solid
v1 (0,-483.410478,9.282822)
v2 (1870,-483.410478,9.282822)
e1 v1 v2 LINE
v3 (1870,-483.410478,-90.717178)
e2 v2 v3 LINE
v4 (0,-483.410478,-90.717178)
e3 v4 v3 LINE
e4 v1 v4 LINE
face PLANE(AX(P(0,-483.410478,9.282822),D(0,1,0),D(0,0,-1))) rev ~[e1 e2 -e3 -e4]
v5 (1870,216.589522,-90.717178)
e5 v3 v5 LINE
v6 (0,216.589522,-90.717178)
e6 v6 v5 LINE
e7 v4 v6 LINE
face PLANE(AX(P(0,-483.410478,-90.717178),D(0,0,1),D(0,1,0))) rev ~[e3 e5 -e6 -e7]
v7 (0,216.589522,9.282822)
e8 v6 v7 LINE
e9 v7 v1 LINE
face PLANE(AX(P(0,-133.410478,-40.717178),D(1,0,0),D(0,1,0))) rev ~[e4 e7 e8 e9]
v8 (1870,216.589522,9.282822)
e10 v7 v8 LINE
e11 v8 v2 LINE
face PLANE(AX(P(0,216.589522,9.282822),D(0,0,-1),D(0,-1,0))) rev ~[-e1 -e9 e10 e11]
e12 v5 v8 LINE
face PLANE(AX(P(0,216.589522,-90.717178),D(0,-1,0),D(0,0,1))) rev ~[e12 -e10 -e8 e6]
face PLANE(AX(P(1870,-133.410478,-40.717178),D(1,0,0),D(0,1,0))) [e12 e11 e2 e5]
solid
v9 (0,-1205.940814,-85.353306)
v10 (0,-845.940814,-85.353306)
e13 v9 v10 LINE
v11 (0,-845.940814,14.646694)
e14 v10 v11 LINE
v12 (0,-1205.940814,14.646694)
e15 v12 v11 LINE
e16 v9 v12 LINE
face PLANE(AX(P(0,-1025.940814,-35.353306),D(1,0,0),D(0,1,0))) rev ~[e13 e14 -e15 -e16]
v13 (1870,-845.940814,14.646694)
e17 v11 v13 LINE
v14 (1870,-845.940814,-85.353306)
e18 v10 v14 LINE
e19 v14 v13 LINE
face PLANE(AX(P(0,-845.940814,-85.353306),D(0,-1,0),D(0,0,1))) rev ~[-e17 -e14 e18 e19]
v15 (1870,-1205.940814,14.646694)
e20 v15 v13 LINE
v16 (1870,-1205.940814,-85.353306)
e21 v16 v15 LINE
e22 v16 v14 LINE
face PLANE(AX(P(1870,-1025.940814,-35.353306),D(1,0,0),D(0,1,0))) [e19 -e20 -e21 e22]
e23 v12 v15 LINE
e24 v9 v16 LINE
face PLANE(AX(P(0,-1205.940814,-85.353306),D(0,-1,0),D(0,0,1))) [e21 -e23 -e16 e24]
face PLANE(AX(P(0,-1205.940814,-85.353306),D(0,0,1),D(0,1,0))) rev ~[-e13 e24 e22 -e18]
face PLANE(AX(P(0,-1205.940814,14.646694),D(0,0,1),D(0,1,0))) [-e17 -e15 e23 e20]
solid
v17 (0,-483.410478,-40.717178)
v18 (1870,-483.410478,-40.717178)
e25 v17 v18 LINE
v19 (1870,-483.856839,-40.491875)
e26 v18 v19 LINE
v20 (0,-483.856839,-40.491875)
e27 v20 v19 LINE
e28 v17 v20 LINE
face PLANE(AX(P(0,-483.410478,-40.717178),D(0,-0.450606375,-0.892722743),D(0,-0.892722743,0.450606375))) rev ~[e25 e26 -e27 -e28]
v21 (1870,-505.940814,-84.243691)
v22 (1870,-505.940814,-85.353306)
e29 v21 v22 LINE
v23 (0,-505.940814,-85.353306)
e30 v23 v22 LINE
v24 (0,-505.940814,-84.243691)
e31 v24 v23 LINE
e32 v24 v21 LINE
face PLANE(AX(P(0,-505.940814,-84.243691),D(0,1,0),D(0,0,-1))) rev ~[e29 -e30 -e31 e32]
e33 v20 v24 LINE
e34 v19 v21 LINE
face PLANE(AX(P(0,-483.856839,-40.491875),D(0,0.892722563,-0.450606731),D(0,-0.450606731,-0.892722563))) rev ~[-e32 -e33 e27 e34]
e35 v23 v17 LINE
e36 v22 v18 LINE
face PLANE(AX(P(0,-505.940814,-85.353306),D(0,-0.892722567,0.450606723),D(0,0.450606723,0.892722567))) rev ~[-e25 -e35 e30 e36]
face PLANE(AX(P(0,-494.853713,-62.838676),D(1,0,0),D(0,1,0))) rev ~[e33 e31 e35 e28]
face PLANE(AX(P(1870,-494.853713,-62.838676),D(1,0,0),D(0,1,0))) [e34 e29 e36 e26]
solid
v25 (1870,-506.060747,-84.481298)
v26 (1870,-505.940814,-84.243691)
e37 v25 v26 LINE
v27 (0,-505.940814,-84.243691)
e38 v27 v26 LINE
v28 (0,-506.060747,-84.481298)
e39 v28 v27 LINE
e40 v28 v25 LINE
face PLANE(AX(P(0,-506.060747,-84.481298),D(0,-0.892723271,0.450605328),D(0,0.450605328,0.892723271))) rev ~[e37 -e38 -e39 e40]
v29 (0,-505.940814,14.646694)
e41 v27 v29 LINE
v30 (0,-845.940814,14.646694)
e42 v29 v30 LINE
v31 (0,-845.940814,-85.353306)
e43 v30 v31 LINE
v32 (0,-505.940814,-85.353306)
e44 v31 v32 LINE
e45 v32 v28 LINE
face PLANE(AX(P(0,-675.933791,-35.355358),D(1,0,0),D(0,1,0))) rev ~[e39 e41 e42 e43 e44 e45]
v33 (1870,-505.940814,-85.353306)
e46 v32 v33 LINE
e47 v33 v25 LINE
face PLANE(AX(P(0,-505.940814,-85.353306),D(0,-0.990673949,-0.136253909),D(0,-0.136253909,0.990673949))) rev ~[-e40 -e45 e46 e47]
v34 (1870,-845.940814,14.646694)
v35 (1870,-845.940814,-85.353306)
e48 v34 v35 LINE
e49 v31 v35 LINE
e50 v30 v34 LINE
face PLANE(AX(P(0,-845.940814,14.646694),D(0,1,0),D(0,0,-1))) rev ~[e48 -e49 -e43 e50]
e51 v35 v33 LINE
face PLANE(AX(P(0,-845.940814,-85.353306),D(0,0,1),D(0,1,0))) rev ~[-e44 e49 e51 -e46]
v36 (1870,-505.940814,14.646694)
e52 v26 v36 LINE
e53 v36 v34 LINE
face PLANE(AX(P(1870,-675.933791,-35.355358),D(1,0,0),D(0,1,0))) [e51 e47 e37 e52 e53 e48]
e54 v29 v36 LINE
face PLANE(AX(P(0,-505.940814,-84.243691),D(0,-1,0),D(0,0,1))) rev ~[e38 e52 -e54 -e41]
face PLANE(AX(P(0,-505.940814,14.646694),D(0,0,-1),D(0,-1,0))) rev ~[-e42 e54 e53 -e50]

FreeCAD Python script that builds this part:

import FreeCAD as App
import Part
import Sketcher

doc = App.newDocument("Part")
body = doc.addObject("PartDesign::Body", "Body")

# Sketch on YZ plane
sketch1 = doc.addObject("Sketcher::SketchObject", "Sketch")
body.addObject(sketch1)
sketch1.AttachmentSupport = (doc.YZ_Plane, [""])
sketch1.MapMode = "FlatFace"
sketch1.addGeometry([
    Part.LineSegment(App.Vector(-1206, 15, 0), App.Vector(-1206, -85, 0)),
    Part.LineSegment(App.Vector(-1206, -85, 0), App.Vector(-846, -85, 0)),
    Part.LineSegment(App.Vector(-846, -85, 0), App.Vector(-846, 15, 0)),
    Part.LineSegment(App.Vector(-846, 15, 0), App.Vector(-1206, 15, 0)),
], False)
sketch1.addConstraint([
    Sketcher.Constraint("Coincident", 0, 2, 1, 1),
    Sketcher.Constraint("Coincident", 1, 2, 2, 1),
    Sketcher.Constraint("Coincident", 2, 2, 3, 1),
    Sketcher.Constraint("Coincident", 3, 2, 0, 1),
    Sketcher.Constraint("Vertical", 0),
    Sketcher.Constraint("Horizontal", 1),
    Sketcher.Constraint("Vertical", 2),
    Sketcher.Constraint("Horizontal", 3),
    Sketcher.Constraint("DistanceX", 1, 1, 1, 2, 360.0),
    Sketcher.Constraint("DistanceY", 0, 2, 0, 1, 100.0),
    Sketcher.Constraint("DistanceX", 0, 2, -1, 1, 1205.940814),
    Sketcher.Constraint("DistanceY", 0, 2, -1, 1, 85.353306),
])
pad1 = doc.addObject("PartDesign::Pad", "Pad")
body.addObject(pad1)
pad1.Profile = sketch1
pad1.Length = 1870
body2 = doc.addObject("PartDesign::Body", "Body001")

# Sketch on YZ plane
sketch2 = doc.addObject("Sketcher::SketchObject", "Sketch001")
body2.addObject(sketch2)
sketch2.AttachmentSupport = (doc.getObject("YZ_Plane001"), [""])
sketch2.MapMode = "FlatFace"
sketch2.addGeometry([
    Part.LineSegment(App.Vector(-505.94, 14.65, 0), App.Vector(-845.94, 14.65, 0)),  # 0
    Part.LineSegment(App.Vector(-845.94, 14.65, 0), App.Vector(-845.94, -85.35, 0)),  # 1
    Part.LineSegment(App.Vector(-845.94, -85.35, 0), App.Vector(-505.94, -85.35, 0)),  # 2
    Part.LineSegment(App.Vector(-505.94, -85.35, 0), App.Vector(-506.06, -84.48, 0)),  # 3
    Part.LineSegment(App.Vector(-506.06, -84.48, 0), App.Vector(-505.94, -84.24, 0)),  # 4
    Part.LineSegment(App.Vector(-505.94, -84.24, 0), App.Vector(-505.94, 14.65, 0)),  # 5
], False)
sketch2.addConstraint([
    Sketcher.Constraint("Coincident", 0, 2, 1, 1),
    Sketcher.Constraint("Coincident", 1, 2, 2, 1),
    Sketcher.Constraint("Coincident", 2, 2, 3, 1),
    Sketcher.Constraint("Coincident", 3, 2, 4, 1),
    Sketcher.Constraint("Coincident", 4, 2, 5, 1),
    Sketcher.Constraint("Coincident", 5, 2, 0, 1),
    Sketcher.Constraint("Horizontal", 0),
    Sketcher.Constraint("Vertical", 1),
    Sketcher.Constraint("Horizontal", 2),
    Sketcher.Constraint("Vertical", 5),
    Sketcher.Constraint("Vertical", 2, 2, 4, 2),
    Sketcher.Constraint("DistanceX", 0, 2, 0, 1, 340.0),
    Sketcher.Constraint("DistanceY", 1, 2, 1, 1, 100.0),
    Sketcher.Constraint("Distance", 4, 0.26616),
    Sketcher.Constraint("DistanceY", 5, 1, 5, 2, 98.890385),
    Sketcher.Constraint("DistanceY", 4, 2, -1, 1, 84.243691),
    Sketcher.Constraint("DistanceY", 2, 2, 3, 2, 0.872008),
    Sketcher.Constraint("DistanceX", 0, 2, -1, 1, 845.940814),
])
pad2 = doc.addObject("PartDesign::Pad", "Pad001")
body2.addObject(pad2)
pad2.Profile = sketch2
pad2.Length = 1870
body3 = doc.addObject("PartDesign::Body", "Body002")

# Sketch on YZ plane
sketch3 = doc.addObject("Sketcher::SketchObject", "Sketch002")
body3.addObject(sketch3)
sketch3.AttachmentSupport = (doc.getObject("YZ_Plane002"), [""])
sketch3.MapMode = "FlatFace"
sketch3.addGeometry([
    Part.LineSegment(App.Vector(-483, 9, 0), App.Vector(-483, -91, 0)),
    Part.LineSegment(App.Vector(-483, -91, 0), App.Vector(217, -91, 0)),
    Part.LineSegment(App.Vector(217, -91, 0), App.Vector(217, 9, 0)),
    Part.LineSegment(App.Vector(217, 9, 0), App.Vector(-483, 9, 0)),
], False)
sketch3.addConstraint([
    Sketcher.Constraint("Coincident", 0, 2, 1, 1),
    Sketcher.Constraint("Coincident", 1, 2, 2, 1),
    Sketcher.Constraint("Coincident", 2, 2, 3, 1),
    Sketcher.Constraint("Coincident", 3, 2, 0, 1),
    Sketcher.Constraint("Vertical", 0),
    Sketcher.Constraint("Horizontal", 1),
    Sketcher.Constraint("Vertical", 2),
    Sketcher.Constraint("Horizontal", 3),
    Sketcher.Constraint("DistanceX", 1, 1, 1, 2, 700.0),
    Sketcher.Constraint("DistanceY", 0, 2, 0, 1, 100.0),
    Sketcher.Constraint("DistanceX", 0, 2, -1, 1, 483.410478),
    Sketcher.Constraint("DistanceY", 0, 2, -1, 1, 90.717178),
])
pad3 = doc.addObject("PartDesign::Pad", "Pad002")
body3.addObject(pad3)
pad3.Profile = sketch3
pad3.Length = 1870
body4 = doc.addObject("PartDesign::Body", "Body003")

# Sketch on YZ plane
sketch4 = doc.addObject("Sketcher::SketchObject", "Sketch003")
body4.addObject(sketch4)
sketch4.AttachmentSupport = (doc.getObject("YZ_Plane003"), [""])
sketch4.MapMode = "FlatFace"
sketch4.addGeometry([
    Part.LineSegment(App.Vector(-505.94, -84.24, 0), App.Vector(-505.94, -85.35, 0)),
    Part.LineSegment(App.Vector(-505.94, -85.35, 0), App.Vector(-483.41, -40.72, 0)),
    Part.LineSegment(App.Vector(-483.41, -40.72, 0), App.Vector(-483.86, -40.49, 0)),
    Part.LineSegment(App.Vector(-483.86, -40.49, 0), App.Vector(-505.94, -84.24, 0)),
], False)
sketch4.addConstraint([
    Sketcher.Constraint("Coincident", 0, 2, 1, 1),
    Sketcher.Constraint("Coincident", 1, 2, 2, 1),
    Sketcher.Constraint("Coincident", 2, 2, 3, 1),
    Sketcher.Constraint("Coincident", 3, 2, 0, 1),
    Sketcher.Constraint("Vertical", 0),
    Sketcher.Constraint("Perpendicular", 1, 2),
    Sketcher.Constraint("Perpendicular", 2, 3),
    Sketcher.Constraint("Distance", 1, 50.0),
    Sketcher.Constraint("Distance", 2, 0.5),
    Sketcher.Constraint("Distance", 3, 49.009421),
    Sketcher.Constraint("DistanceX", 1, 2, -1, 1, 483.410478),
    Sketcher.Constraint("DistanceY", 3, 2, -1, 1, 84.243691),
])
pad4 = doc.addObject("PartDesign::Pad", "Pad003")
body4.addObject(pad4)
pad4.Profile = sketch4
pad4.Length = 1870

doc.recompute()
